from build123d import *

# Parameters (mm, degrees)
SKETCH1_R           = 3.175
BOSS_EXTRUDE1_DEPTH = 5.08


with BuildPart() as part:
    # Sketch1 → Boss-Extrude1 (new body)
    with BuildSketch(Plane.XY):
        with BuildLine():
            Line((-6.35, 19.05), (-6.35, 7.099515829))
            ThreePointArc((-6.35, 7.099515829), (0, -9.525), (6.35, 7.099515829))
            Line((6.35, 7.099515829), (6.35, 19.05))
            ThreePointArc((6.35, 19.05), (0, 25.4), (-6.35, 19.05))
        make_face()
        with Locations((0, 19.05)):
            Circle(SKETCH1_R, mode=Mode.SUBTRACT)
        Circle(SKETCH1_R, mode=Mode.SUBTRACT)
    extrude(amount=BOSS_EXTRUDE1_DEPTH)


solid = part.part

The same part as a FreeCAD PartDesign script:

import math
import FreeCAD as App
import Part
import Sketcher

V = App.Vector
Q = App.Units.Quantity

doc = App.newDocument("Part")
body = doc.addObject("PartDesign::Body", "Body")

sketch1 = doc.addObject("Sketcher::SketchObject", "Sketch")
body.addObject(sketch1)
sketch1.AttachmentSupport = (doc.XY_Plane, [""])
sketch1.MapMode = "FlatFace"
sketch1.addGeometry([
    Part.LineSegment(V(-6.3, 19.1, 0), V(-6.3, 7.1, 0)),
    Part.ArcOfCircle(Part.Circle(V(0, 0, 0), V(0, 0, 1), 9.5), math.radians(132), math.radians(408)),
    Part.LineSegment(V(6.3, 7.1, 0), V(6.3, 19.1, 0)),
    Part.ArcOfCircle(Part.Circle(V(0, 19.1, 0), V(0, 0, 1), 6.3), math.radians(0), math.radians(180)),
    Part.Circle(V(0, 0, 0), V(0, 0, 1), 3.2),
    Part.Circle(V(0, 19.1, 0), V(0, 0, 1), 3.2),
], False)
sketch1.addConstraint([
    Sketcher.Constraint("Coincident", 0, 2, 1, 1),
    Sketcher.Constraint("Coincident", 1, 2, 2, 1),
    Sketcher.Constraint("Tangent", 2, 2, 3, 1),
    Sketcher.Constraint("Tangent", 3, 2, 0, 1),
    Sketcher.Constraint("Vertical", 0),
    Sketcher.Constraint("Vertical", 2),
    Sketcher.Constraint("Coincident", 1, 3, -1, 1),
    Sketcher.Constraint("Coincident", 4, 3, -1, 1),
    Sketcher.Constraint("Coincident", 5, 3, 3, 3),
    Sketcher.Constraint("Equal", 4, 5),
    Sketcher.Constraint("PointOnObject", 3, 3, -2),
    Sketcher.Constraint("Diameter", 4, Q("0.25 in")),
    Sketcher.Constraint("Radius", 3, Q("0.25 in")),
    Sketcher.Constraint("Radius", 1, Q("0.375 in")),
    Sketcher.Constraint("DistanceY", -1, 1, 3, 3, Q("0.75 in")),
])
pad1 = doc.addObject("PartDesign::Pad", "Pad")
body.addObject(pad1)
pad1.Profile = sketch1
pad1.Length = Q("0.2 in")

doc.recompute()
